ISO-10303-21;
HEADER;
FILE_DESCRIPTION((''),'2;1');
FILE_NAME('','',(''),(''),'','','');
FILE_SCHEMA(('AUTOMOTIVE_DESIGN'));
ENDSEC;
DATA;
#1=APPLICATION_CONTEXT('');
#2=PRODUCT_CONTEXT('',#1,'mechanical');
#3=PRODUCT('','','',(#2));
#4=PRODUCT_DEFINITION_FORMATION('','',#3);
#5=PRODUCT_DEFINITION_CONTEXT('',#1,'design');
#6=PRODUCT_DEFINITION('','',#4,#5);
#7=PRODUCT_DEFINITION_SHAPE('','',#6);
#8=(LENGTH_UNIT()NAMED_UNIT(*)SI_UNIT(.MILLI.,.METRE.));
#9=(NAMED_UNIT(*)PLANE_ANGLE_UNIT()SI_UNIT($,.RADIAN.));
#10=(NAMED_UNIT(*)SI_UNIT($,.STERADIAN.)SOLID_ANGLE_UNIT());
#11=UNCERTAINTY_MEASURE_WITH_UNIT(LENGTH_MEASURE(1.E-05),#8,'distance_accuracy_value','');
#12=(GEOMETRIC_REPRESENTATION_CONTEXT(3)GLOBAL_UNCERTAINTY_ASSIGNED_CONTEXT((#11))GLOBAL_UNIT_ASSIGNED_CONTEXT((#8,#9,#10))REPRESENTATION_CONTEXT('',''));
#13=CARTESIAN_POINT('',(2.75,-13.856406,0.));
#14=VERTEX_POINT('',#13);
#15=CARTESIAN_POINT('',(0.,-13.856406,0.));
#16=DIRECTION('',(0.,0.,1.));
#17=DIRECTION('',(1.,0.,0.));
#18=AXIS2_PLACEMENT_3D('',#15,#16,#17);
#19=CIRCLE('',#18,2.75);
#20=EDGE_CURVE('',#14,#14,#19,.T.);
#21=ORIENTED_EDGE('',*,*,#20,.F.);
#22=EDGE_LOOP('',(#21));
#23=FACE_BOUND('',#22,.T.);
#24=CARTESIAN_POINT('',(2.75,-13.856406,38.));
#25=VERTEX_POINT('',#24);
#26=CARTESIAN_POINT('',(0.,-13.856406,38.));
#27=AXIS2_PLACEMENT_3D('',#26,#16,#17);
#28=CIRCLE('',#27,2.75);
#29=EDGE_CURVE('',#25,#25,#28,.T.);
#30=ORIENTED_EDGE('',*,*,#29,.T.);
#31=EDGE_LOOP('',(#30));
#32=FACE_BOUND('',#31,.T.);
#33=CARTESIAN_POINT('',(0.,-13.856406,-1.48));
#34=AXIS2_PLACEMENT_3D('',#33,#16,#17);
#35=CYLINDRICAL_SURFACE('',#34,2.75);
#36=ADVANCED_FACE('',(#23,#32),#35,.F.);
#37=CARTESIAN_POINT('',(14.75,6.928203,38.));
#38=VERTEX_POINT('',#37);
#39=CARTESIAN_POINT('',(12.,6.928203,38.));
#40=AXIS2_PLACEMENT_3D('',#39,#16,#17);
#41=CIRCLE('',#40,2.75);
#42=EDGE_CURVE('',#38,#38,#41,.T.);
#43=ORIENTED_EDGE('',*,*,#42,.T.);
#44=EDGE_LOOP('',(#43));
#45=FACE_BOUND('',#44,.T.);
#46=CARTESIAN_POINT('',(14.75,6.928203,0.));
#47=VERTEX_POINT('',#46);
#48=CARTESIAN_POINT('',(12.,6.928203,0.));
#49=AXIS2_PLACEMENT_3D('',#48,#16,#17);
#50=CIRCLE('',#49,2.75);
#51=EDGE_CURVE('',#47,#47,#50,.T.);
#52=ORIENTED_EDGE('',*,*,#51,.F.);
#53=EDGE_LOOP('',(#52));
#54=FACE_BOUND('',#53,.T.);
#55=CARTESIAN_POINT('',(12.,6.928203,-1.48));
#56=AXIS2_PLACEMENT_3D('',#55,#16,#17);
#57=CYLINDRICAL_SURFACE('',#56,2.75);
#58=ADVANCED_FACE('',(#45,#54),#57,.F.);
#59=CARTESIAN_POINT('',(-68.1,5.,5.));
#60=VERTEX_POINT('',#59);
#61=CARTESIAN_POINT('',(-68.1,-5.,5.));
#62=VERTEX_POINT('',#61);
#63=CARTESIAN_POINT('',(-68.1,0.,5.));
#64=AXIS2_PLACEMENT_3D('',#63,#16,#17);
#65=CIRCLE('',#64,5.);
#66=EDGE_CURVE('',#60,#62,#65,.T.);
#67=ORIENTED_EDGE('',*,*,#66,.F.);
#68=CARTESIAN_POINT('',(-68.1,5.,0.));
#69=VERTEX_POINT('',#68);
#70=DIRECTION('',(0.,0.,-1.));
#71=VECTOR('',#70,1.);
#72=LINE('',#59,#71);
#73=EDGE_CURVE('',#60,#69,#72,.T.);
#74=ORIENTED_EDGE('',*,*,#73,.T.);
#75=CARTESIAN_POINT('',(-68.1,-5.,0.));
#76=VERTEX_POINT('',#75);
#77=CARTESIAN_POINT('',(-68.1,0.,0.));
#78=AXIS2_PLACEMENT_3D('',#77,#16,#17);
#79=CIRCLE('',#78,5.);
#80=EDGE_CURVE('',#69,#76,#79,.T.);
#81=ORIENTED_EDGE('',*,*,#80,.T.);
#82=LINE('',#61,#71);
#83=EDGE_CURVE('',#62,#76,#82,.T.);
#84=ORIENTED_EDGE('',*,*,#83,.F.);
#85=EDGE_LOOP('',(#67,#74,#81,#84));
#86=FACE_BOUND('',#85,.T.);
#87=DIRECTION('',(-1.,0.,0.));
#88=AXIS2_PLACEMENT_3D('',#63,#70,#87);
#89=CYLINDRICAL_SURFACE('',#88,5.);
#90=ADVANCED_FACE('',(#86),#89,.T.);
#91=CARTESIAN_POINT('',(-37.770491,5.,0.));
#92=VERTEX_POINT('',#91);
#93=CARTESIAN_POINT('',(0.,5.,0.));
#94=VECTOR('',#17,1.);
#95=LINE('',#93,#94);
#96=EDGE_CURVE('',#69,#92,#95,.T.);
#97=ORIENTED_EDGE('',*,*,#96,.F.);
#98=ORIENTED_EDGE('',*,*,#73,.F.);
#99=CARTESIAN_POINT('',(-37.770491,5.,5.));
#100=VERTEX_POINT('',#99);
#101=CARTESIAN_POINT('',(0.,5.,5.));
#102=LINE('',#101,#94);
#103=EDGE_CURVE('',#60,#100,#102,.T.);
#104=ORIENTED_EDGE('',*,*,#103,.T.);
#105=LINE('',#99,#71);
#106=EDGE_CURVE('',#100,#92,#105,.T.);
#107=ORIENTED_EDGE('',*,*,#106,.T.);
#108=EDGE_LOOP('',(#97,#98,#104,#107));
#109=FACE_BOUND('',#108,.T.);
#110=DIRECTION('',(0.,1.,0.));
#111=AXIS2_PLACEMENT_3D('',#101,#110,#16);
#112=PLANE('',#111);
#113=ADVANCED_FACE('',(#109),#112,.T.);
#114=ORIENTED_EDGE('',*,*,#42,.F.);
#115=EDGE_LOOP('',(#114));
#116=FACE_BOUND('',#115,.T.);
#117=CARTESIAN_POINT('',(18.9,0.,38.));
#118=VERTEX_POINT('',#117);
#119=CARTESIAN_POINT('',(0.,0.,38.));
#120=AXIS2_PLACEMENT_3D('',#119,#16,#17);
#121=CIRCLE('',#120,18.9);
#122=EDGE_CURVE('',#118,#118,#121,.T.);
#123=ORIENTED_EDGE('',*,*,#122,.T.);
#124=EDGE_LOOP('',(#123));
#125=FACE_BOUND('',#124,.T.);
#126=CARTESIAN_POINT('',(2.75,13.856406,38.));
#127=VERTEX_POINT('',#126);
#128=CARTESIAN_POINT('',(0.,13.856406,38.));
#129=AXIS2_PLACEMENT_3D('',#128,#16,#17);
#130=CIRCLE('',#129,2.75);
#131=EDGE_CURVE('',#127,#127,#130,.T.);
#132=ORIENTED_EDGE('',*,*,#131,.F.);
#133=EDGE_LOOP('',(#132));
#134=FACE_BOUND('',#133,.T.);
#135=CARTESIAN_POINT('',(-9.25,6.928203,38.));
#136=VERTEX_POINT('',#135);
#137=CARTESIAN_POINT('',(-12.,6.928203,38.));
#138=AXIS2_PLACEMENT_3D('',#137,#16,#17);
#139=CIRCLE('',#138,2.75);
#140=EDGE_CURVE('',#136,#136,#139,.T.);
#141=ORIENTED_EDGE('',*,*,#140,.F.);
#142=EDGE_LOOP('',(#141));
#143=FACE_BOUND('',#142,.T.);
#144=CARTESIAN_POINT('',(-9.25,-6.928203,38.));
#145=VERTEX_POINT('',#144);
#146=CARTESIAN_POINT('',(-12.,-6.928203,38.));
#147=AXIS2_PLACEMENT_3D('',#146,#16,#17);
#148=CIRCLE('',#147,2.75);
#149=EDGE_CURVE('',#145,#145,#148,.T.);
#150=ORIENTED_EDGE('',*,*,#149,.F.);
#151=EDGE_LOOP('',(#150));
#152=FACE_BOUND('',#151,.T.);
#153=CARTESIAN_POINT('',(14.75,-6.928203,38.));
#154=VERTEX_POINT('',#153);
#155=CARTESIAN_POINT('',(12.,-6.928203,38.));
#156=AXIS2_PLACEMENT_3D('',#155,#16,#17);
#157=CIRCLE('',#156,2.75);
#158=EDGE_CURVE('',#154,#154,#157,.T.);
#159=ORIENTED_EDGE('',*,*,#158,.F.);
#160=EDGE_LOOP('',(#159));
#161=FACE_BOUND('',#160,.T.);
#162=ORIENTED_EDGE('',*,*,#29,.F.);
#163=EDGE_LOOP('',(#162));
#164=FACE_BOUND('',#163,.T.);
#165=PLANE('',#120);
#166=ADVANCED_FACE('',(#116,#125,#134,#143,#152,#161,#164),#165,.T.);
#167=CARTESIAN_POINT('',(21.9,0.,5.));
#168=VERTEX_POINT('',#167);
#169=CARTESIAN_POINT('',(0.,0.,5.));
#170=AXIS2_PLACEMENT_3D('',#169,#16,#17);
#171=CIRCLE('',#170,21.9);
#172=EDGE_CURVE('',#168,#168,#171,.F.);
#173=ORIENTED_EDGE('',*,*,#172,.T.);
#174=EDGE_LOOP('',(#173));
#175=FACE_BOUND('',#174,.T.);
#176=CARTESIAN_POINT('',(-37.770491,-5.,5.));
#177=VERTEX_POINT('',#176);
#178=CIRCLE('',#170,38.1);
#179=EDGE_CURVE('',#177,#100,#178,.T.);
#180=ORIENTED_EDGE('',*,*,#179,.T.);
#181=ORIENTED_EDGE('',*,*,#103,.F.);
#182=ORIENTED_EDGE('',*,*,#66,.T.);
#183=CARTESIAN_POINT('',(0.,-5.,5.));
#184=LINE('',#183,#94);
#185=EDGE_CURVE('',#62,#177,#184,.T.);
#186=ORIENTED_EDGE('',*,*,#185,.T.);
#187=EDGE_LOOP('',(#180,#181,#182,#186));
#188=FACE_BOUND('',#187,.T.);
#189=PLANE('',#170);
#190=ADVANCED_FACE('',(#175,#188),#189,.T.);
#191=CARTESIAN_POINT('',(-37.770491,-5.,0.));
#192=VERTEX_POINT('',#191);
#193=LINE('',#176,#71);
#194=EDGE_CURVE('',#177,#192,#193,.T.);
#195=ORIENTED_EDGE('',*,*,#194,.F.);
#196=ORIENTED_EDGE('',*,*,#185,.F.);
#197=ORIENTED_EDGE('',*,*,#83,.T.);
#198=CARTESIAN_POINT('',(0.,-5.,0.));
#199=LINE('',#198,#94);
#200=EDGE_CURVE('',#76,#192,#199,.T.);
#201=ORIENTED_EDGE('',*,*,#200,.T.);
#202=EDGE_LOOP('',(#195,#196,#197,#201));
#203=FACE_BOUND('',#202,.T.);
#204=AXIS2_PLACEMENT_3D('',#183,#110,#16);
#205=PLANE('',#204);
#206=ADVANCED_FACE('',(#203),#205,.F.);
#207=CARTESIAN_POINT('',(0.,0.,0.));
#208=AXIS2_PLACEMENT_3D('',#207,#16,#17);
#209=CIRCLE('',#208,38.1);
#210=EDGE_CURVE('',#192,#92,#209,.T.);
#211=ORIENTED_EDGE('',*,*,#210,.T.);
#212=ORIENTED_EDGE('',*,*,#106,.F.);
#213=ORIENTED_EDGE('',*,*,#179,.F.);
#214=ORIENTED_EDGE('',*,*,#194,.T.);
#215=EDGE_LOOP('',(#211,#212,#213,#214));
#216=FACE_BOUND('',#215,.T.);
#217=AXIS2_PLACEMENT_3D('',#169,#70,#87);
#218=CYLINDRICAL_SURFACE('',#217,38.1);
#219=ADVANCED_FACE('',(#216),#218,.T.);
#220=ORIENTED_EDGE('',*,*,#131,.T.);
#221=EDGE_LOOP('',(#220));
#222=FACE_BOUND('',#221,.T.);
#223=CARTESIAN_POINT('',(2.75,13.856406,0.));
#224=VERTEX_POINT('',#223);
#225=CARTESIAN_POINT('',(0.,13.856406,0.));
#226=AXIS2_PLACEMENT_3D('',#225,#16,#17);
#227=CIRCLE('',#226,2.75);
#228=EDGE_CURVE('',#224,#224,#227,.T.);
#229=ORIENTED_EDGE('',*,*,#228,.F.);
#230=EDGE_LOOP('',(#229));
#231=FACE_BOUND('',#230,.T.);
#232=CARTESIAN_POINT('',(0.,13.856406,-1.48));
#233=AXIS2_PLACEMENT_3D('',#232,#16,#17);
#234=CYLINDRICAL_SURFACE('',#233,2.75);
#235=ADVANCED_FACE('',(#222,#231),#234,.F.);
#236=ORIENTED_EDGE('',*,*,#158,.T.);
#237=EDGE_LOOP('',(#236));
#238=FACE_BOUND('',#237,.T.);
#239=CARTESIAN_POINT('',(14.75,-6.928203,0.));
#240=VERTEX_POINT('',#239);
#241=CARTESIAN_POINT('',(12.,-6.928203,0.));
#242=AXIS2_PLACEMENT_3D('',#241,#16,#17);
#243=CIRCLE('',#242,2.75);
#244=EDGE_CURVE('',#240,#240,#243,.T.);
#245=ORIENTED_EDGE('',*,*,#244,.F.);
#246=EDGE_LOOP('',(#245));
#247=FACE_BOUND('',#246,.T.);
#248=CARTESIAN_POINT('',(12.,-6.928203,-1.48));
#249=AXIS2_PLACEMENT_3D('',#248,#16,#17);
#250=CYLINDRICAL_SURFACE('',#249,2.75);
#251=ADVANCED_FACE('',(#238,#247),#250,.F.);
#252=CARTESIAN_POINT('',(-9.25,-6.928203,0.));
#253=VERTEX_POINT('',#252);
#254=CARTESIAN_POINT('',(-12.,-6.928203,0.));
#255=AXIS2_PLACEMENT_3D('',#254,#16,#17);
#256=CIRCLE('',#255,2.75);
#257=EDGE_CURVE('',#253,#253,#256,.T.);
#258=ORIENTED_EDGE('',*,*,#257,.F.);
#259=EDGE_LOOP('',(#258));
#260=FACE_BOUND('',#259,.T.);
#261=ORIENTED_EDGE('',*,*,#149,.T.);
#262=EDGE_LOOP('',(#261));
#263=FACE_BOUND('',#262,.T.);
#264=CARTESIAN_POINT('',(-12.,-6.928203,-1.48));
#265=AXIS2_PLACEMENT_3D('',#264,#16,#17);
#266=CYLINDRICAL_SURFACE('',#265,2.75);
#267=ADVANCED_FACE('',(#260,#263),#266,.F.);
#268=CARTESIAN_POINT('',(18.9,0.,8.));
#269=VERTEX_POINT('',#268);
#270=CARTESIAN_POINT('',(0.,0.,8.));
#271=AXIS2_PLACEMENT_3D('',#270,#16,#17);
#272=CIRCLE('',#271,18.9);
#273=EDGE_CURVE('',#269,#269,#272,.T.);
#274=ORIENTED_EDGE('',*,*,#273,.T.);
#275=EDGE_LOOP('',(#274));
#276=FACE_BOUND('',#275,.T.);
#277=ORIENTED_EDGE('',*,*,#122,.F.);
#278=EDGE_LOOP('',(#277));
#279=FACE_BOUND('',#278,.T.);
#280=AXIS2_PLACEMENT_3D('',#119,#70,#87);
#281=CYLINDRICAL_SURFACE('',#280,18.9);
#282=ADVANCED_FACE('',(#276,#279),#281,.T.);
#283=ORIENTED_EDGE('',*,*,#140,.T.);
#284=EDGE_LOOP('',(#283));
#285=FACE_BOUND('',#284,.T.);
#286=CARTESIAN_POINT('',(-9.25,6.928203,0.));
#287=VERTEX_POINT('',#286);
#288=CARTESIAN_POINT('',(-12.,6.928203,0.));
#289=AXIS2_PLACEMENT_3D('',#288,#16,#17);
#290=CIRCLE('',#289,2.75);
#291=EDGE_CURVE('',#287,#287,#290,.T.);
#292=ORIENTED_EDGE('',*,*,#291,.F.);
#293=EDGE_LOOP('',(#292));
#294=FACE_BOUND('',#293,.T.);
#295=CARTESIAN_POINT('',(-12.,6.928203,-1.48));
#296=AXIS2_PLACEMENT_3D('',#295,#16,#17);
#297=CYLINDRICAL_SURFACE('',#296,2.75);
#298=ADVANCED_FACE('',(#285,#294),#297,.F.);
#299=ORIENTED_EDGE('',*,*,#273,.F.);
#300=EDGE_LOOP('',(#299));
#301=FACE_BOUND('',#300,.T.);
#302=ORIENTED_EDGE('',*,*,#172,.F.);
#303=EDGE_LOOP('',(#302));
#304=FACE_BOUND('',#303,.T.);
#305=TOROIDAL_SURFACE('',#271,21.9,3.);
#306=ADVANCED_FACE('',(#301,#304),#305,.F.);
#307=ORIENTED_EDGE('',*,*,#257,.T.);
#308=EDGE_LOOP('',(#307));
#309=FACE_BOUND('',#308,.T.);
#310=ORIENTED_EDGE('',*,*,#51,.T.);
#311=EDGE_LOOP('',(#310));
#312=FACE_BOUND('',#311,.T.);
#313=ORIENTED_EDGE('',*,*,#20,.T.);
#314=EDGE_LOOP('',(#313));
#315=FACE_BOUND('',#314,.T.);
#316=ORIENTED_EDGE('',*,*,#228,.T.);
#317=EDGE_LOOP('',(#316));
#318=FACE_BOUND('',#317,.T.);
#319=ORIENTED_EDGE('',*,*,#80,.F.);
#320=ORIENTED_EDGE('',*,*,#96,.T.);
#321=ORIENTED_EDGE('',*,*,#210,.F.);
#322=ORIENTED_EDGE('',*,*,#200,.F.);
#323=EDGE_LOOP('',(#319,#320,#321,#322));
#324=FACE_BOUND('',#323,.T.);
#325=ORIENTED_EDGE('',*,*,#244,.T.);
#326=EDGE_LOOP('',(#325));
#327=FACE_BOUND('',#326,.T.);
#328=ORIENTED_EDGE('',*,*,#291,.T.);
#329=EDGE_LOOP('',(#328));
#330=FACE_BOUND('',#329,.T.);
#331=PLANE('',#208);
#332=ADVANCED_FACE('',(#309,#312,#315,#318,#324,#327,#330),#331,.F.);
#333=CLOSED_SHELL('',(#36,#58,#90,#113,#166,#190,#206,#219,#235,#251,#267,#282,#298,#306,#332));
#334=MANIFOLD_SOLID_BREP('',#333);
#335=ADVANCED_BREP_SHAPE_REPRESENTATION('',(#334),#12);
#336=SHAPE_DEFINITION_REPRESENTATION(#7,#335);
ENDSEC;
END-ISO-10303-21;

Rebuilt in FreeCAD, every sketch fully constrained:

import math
import FreeCAD as App
import Part
import Sketcher


def edges_at(feature, points):
    """Names of the edges that pass closest to the given points."""
    edges = feature.Shape.Edges
    near = lambda p: min(range(len(edges)), key=lambda i: edges[i].distToShape(Part.Vertex(*p))[0])
    return sorted({f"Edge{near(p) + 1}" for p in points})

doc = App.newDocument("Part")
body = doc.addObject("PartDesign::Body", "Body")

# Sketch on XY plane
sketch1 = body.newObject("Sketcher::SketchObject", "Sketch")
sketch1.AttachmentSupport = (doc.getObject("XY_Plane"), [""])
sketch1.MapMode = "FlatFace"
sketch1.addGeometry(Part.LineSegment(App.Vector(-38, 5, 0), App.Vector(-68, 5, 0)), False)
sketch1.addGeometry(Part.ArcOfCircle(Part.Circle(App.Vector(-68, 0, 0), App.Vector(0, 0, 1), 5), math.radians(90), math.radians(270)), False)
sketch1.addGeometry(Part.LineSegment(App.Vector(-68, -5, 0), App.Vector(-38, -5, 0)), False)
sketch1.addGeometry(Part.ArcOfCircle(Part.Circle(App.Vector(0, 0, 0), App.Vector(0, 0, 1), 38), math.radians(-172), math.radians(172)), False)
sketch1.addConstraint(Sketcher.Constraint("Tangent", 0, 2, 1, 1))
sketch1.addConstraint(Sketcher.Constraint("Tangent", 1, 2, 2, 1))
sketch1.addConstraint(Sketcher.Constraint("Coincident", 2, 2, 3, 1))
sketch1.addConstraint(Sketcher.Constraint("Coincident", 3, 2, 0, 1))
sketch1.addConstraint(Sketcher.Constraint("Horizontal", 0))
sketch1.addConstraint(Sketcher.Constraint("Horizontal", 2))
sketch1.addConstraint(Sketcher.Constraint("Coincident", 3, 3, -1, 1))
sketch1.addConstraint(Sketcher.Constraint("PointOnObject", 1, 3, -1))
sketch1.addConstraint(Sketcher.Constraint("Radius", 1, 5.0))
sketch1.addConstraint(Sketcher.Constraint("Radius", 3, 38.1))
sketch1.addConstraint(Sketcher.Constraint("DistanceX", 1, 3, -1, 1, 68.1))
pad1 = body.newObject("PartDesign::Pad", "Pad")
pad1.Profile = sketch1
pad1.Length = 5

# Sketch on XY plane
sketch2 = body.newObject("Sketcher::SketchObject", "Sketch001")
sketch2.AttachmentSupport = (doc.getObject("XY_Plane"), [""])
sketch2.MapMode = "FlatFace"
sketch2.AttachmentOffset = App.Placement(App.Vector(0, 0, 5), App.Rotation())
sketch2.addGeometry(Part.Circle(App.Vector(0, 0, 0), App.Vector(0, 0, 1), 19), False)
sketch2.addConstraint(Sketcher.Constraint("Coincident", 0, 3, -1, 1))
sketch2.addConstraint(Sketcher.Constraint("Diameter", 0, 37.8))
pad2 = body.newObject("PartDesign::Pad", "Pad001")
pad2.Profile = sketch2
pad2.Length = 33
doc.recompute()

fillet = body.newObject("PartDesign::Fillet", "Fillet")
fillet.Base = (pad2, edges_at(pad2, [(-18.9, 0, 5)]))
fillet.Radius = 3

# Sketch on XY plane
sketch3 = body.newObject("Sketcher::SketchObject", "Sketch002")
sketch3.AttachmentSupport = (doc.getObject("XY_Plane"), [""])
sketch3.MapMode = "FlatFace"
sketch3.AttachmentOffset = App.Placement(App.Vector(0, 0, 38), App.Rotation())
sketch3.addGeometry(Part.ArcOfCircle(Part.Circle(App.Vector(0, 13.9, 0), App.Vector(0, 0, 1), 2.7), math.radians(-150), math.radians(-30)), False)
sketch3.addGeometry(Part.ArcOfCircle(Part.Circle(App.Vector(0, 13.9, 0), App.Vector(0, 0, 1), 2.8), math.radians(-30), math.radians(0)), False)
sketch3.addGeometry(Part.ArcOfCircle(Part.Circle(App.Vector(0, 13.9, 0), App.Vector(0, 0, 1), 2.8), math.radians(0), math.radians(210)), False)
sketch3.addGeometry(Part.ArcOfCircle(Part.Circle(App.Vector(12, 6.9, 0), App.Vector(0, 0, 1), 2.8), math.radians(0), math.radians(150)), False)
sketch3.addGeometry(Part.ArcOfCircle(Part.Circle(App.Vector(12, 6.9, 0), App.Vector(0, 0, 1), 2.8), math.radians(150), math.radians(270)), False)
sketch3.addGeometry(Part.ArcOfCircle(Part.Circle(App.Vector(12, 6.9, 0), App.Vector(0, 0, 1), 2.8), math.radians(-90), math.radians(0)), False)
sketch3.addGeometry(Part.ArcOfCircle(Part.Circle(App.Vector(12, -6.9, 0), App.Vector(0, 0, 1), 2.8), math.radians(0), math.radians(90)), False)
sketch3.addGeometry(Part.ArcOfCircle(Part.Circle(App.Vector(12, -6.9, 0), App.Vector(0, 0, 1), 2.8), math.radians(90), math.radians(210)), False)
sketch3.addGeometry(Part.ArcOfCircle(Part.Circle(App.Vector(12, -6.9, 0), App.Vector(0, 0, 1), 2.8), math.radians(-150), math.radians(0)), False)
sketch3.addGeometry(Part.ArcOfCircle(Part.Circle(App.Vector(-12, 6.9, 0), App.Vector(0, 0, 1), 2.8), math.radians(0), math.radians(30)), False)
sketch3.addGeometry(Part.ArcOfCircle(Part.Circle(App.Vector(-12, 6.9, 0), App.Vector(0, 0, 1), 2.8), math.radians(30), math.radians(270)), False)
sketch3.addGeometry(Part.ArcOfCircle(Part.Circle(App.Vector(-12, 6.9, 0), App.Vector(0, 0, 1), 2.8), math.radians(-90), math.radians(0)), False)
sketch3.addGeometry(Part.ArcOfCircle(Part.Circle(App.Vector(-12, -6.9, 0), App.Vector(0, 0, 1), 2.8), math.radians(0), math.radians(90)), False)
sketch3.addGeometry(Part.ArcOfCircle(Part.Circle(App.Vector(-12, -6.9, 0), App.Vector(0, 0, 1), 2.8), math.radians(90), math.radians(330)), False)
sketch3.addGeometry(Part.ArcOfCircle(Part.Circle(App.Vector(-12, -6.9, 0), App.Vector(0, 0, 1), 2.8), math.radians(-30), math.radians(0)), False)
sketch3.addGeometry(Part.ArcOfCircle(Part.Circle(App.Vector(0, -13.9, 0), App.Vector(0, 0, 1), 2.7), math.radians(30), math.radians(150)), False)
sketch3.addGeometry(Part.ArcOfCircle(Part.Circle(App.Vector(0, -13.9, 0), App.Vector(0, 0, 1), 2.8), math.radians(150), math.radians(360)), False)
sketch3.addGeometry(Part.ArcOfCircle(Part.Circle(App.Vector(0, -13.9, 0), App.Vector(0, 0, 1), 2.8), math.radians(0), math.radians(30)), False)
sketch3.addConstraint(Sketcher.Constraint("Tangent", 0, 2, 1, 1))
sketch3.addConstraint(Sketcher.Constraint("Tangent", 1, 2, 2, 1))
sketch3.addConstraint(Sketcher.Constraint("Tangent", 2, 2, 0, 1))
sketch3.addConstraint(Sketcher.Constraint("Tangent", 3, 2, 4, 1))
sketch3.addConstraint(Sketcher.Constraint("Tangent", 4, 2, 5, 1))
sketch3.addConstraint(Sketcher.Constraint("Tangent", 5, 2, 3, 1))
sketch3.addConstraint(Sketcher.Constraint("Tangent", 6, 2, 7, 1))
sketch3.addConstraint(Sketcher.Constraint("Tangent", 7, 2, 8, 1))
sketch3.addConstraint(Sketcher.Constraint("Tangent", 8, 2, 6, 1))
sketch3.addConstraint(Sketcher.Constraint("Tangent", 9, 2, 10, 1))
sketch3.addConstraint(Sketcher.Constraint("Tangent", 10, 2, 11, 1))
sketch3.addConstraint(Sketcher.Constraint("Tangent", 11, 2, 9, 1))
sketch3.addConstraint(Sketcher.Constraint("Tangent", 12, 2, 13, 1))
sketch3.addConstraint(Sketcher.Constraint("Tangent", 13, 2, 14, 1))
sketch3.addConstraint(Sketcher.Constraint("Tangent", 14, 2, 12, 1))
sketch3.addConstraint(Sketcher.Constraint("Tangent", 15, 2, 16, 1))
sketch3.addConstraint(Sketcher.Constraint("Tangent", 16, 2, 17, 1))
sketch3.addConstraint(Sketcher.Constraint("Tangent", 17, 2, 15, 1))
sketch3.addConstraint(Sketcher.Constraint("Equal", 2, 3))
sketch3.addConstraint(Sketcher.Constraint("Equal", 5, 6))
sketch3.addConstraint(Sketcher.Constraint("Equal", 8, 9))
sketch3.addConstraint(Sketcher.Constraint("Equal", 11, 12))
sketch3.addConstraint(Sketcher.Constraint("Equal", 14, 15))
sketch3.addConstraint(Sketcher.Constraint("Symmetric", 6, 3, 9, 3, -1, 1))
sketch3.addConstraint(Sketcher.Constraint("Symmetric", 3, 3, 12, 3, -1, 1))
sketch3.addConstraint(Sketcher.Constraint("Symmetric", 0, 3, 15, 3, -1, 1))
sketch3.addConstraint(Sketcher.Constraint("Symmetric", 3, 3, 9, 3, -2))
sketch3.addConstraint(Sketcher.Constraint("Symmetric", 0, 2, 2, 2, -2))
sketch3.addConstraint(Sketcher.Constraint("Horizontal", 2, 3, 1, 2))
sketch3.addConstraint(Sketcher.Constraint("Horizontal", 11, 3, 5, 2))
sketch3.addConstraint(Sketcher.Constraint("Horizontal", 14, 3, 8, 2))
sketch3.addConstraint(Sketcher.Constraint("Horizontal", 3, 2, 9, 2))
sketch3.addConstraint(Sketcher.Constraint("Horizontal", 5, 2, 11, 2))
sketch3.addConstraint(Sketcher.Constraint("Horizontal", 7, 2, 13, 2))
sketch3.addConstraint(Sketcher.Constraint("Horizontal", 8, 2, 14, 2))
sketch3.addConstraint(Sketcher.Constraint("Horizontal", 17, 3, 16, 2))
sketch3.addConstraint(Sketcher.Constraint("Horizontal", 15, 2, 17, 2))
sketch3.addConstraint(Sketcher.Constraint("Vertical", 8, 3, 4, 2))
sketch3.addConstraint(Sketcher.Constraint("Vertical", 4, 2, 6, 2))
sketch3.addConstraint(Sketcher.Constraint("Vertical", 3, 2, 7, 2))
sketch3.addConstraint(Sketcher.Constraint("Vertical", 14, 3, 10, 2))
sketch3.addConstraint(Sketcher.Constraint("Vertical", 10, 2, 12, 2))
sketch3.addConstraint(Sketcher.Constraint("Vertical", 2, 2, 15, 2))
sketch3.addConstraint(Sketcher.Constraint("Radius", 0, 2.75))
sketch3.addConstraint(Sketcher.Constraint("DistanceX", -1, 1, 3, 3, 12.0))
sketch3.addConstraint(Sketcher.Constraint("DistanceY", 0, 2, 0, 3, 1.375))
sketch3.addConstraint(Sketcher.Constraint("DistanceY", 5, 3, 3, 2, 1.375))
sketch3.addConstraint(Sketcher.Constraint("DistanceY", 6, 3, 0, 3, 20.78461))
sketch3.addConstraint(Sketcher.Constraint("DistanceY", -1, 1, 0, 3, 13.856406))
pocket1 = body.newObject("PartDesign::Pocket", "Pocket")
pocket1.Profile = sketch3
pocket1.Length = 39.48

doc.recompute()
